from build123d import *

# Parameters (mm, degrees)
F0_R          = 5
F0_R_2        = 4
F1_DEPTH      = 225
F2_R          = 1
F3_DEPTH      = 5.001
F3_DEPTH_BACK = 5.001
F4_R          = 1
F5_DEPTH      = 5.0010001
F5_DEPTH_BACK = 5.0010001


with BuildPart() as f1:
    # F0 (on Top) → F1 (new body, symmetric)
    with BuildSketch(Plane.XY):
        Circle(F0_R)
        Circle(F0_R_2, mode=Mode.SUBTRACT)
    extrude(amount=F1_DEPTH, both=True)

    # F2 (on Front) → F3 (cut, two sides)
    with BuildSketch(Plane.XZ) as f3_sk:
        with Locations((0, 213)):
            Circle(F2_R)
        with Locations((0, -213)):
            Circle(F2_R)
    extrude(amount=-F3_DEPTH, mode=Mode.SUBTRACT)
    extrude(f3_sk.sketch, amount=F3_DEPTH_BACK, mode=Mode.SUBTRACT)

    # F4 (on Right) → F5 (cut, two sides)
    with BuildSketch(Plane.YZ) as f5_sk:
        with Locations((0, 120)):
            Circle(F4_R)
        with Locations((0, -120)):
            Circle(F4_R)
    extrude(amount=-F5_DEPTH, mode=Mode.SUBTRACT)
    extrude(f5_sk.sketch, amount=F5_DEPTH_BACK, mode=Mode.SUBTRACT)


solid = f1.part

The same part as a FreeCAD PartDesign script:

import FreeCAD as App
import Part
import Sketcher

V = App.Vector
Q = App.Units.Quantity

doc = App.newDocument("Part")
body = doc.addObject("PartDesign::Body", "Body")

# Sketch on XY plane
sketch1 = doc.addObject("Sketcher::SketchObject", "Sketch")
body.addObject(sketch1)
sketch1.AttachmentSupport = (doc.XY_Plane, [""])
sketch1.MapMode = "FlatFace"
sketch1.addGeometry(Part.Circle(V(0, 0, 0), V(0, 0, 1), 5), False)
sketch1.addGeometry(Part.Circle(V(0, 0, 0), V(0, 0, 1), 4), False)
sketch1.addConstraint(Sketcher.Constraint("Coincident", 0, 3, -1, 1))
sketch1.addConstraint(Sketcher.Constraint("Coincident", 1, 3, -1, 1))
sketch1.addConstraint(Sketcher.Constraint("Diameter", 0, Q("10 mm")))
sketch1.addConstraint(Sketcher.Constraint("Diameter", 1, Q("8 mm")))
pad1 = doc.addObject("PartDesign::Pad", "Pad")
body.addObject(pad1)
pad1.Profile = sketch1
pad1.Length = 450
pad1.Midplane = True

# Sketch on XZ plane
sketch2 = doc.addObject("Sketcher::SketchObject", "Sketch001")
body.addObject(sketch2)
sketch2.AttachmentSupport = (doc.XZ_Plane, [""])
sketch2.MapMode = "FlatFace"
sketch2.addGeometry(Part.Circle(V(0, 213, 0), V(0, 0, 1), 1), False)
sketch2.addGeometry(Part.Circle(V(0, -213, 0), V(0, 0, 1), 1), False)
sketch2.addConstraint(Sketcher.Constraint("Equal", 0, 1))
sketch2.addConstraint(Sketcher.Constraint("Symmetric", 0, 3, 1, 3, -1, 1))
sketch2.addConstraint(Sketcher.Constraint("PointOnObject", 0, 3, -2))
sketch2.addConstraint(Sketcher.Constraint("Diameter", 0, Q("2 mm")))
sketch2.addConstraint(Sketcher.Constraint("DistanceY", -1, 1, 0, 3, Q("213 mm")))
pocket1 = doc.addObject("PartDesign::Pocket", "Pocket")
body.addObject(pocket1)
pocket1.Profile = sketch2
pocket1.Type = "ThroughAll"
pocket1.Midplane = True

# Sketch on YZ plane
sketch3 = doc.addObject("Sketcher::SketchObject", "Sketch002")
body.addObject(sketch3)
sketch3.AttachmentSupport = (doc.YZ_Plane, [""])
sketch3.MapMode = "FlatFace"
sketch3.addGeometry(Part.Circle(V(0, 120, 0), V(0, 0, 1), 1), False)
sketch3.addGeometry(Part.Circle(V(0, -120, 0), V(0, 0, 1), 1), False)
sketch3.addConstraint(Sketcher.Constraint("Equal", 0, 1))
sketch3.addConstraint(Sketcher.Constraint("Symmetric", 0, 3, 1, 3, -1, 1))
sketch3.addConstraint(Sketcher.Constraint("PointOnObject", 0, 3, -2))
sketch3.addConstraint(Sketcher.Constraint("Diameter", 0, Q("2 mm")))
sketch3.addConstraint(Sketcher.Constraint("DistanceY", -1, 1, 0, 3, Q("120 mm")))
pocket2 = doc.addObject("PartDesign::Pocket", "Pocket001")
body.addObject(pocket2)
pocket2.Profile = sketch3
pocket2.Type = "ThroughAll"
pocket2.Midplane = True

doc.recompute()
